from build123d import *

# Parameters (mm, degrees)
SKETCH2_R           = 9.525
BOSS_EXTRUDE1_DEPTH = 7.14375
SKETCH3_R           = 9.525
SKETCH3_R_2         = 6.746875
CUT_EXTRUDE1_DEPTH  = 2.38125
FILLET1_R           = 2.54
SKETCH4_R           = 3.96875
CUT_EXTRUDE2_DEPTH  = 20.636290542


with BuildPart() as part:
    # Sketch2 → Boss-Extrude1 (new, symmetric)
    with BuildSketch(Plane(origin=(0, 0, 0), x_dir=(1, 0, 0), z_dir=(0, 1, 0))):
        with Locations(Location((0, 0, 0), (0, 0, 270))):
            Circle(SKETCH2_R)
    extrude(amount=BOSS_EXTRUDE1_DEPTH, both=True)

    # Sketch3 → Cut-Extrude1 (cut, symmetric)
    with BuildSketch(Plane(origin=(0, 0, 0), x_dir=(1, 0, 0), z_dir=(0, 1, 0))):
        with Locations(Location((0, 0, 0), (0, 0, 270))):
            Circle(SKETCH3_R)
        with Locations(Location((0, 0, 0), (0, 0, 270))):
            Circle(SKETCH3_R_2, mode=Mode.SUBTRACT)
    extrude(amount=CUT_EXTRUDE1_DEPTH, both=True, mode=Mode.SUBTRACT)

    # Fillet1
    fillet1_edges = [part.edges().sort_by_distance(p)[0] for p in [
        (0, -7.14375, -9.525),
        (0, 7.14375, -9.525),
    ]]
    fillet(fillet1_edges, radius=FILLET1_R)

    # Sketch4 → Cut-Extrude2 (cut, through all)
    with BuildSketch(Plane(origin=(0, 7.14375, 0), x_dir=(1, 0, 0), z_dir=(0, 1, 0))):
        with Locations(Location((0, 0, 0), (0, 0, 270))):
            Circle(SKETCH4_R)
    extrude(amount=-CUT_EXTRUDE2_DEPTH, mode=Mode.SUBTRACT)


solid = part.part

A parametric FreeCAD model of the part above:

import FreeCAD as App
import Part
import Sketcher
Q = App.Units.Quantity


def edges_at(feature, points):
    """Names of the edges that pass closest to the given points."""
    edges = feature.Shape.Edges
    near = lambda p: min(range(len(edges)), key=lambda i: edges[i].distToShape(Part.Vertex(*p))[0])
    return sorted({f"Edge{near(p) + 1}" for p in points})

doc = App.newDocument("Part")
body = doc.addObject("PartDesign::Body", "Body")

# Sketch on XZ plane
sketch1 = body.newObject("Sketcher::SketchObject", "Sketch")
sketch1.AttachmentSupport = (doc.getObject("XZ_Plane"), [""])
sketch1.MapMode = "FlatFace"
sketch1.addGeometry(Part.Circle(App.Vector(0, 0, 0), App.Vector(0, 0, 1), 10), False)
sketch1.addConstraint(Sketcher.Constraint("Coincident", 0, 3, -1, 1))
sketch1.addConstraint(Sketcher.Constraint("Diameter", 0, Q("0.75 in")))
pad1 = body.newObject("PartDesign::Pad", "Pad")
pad1.Profile = sketch1
pad1.Length = Q("0.5625 in")
pad1.Midplane = True

# Sketch on XZ plane
sketch2 = body.newObject("Sketcher::SketchObject", "Sketch001")
sketch2.AttachmentSupport = (doc.getObject("XZ_Plane"), [""])
sketch2.MapMode = "FlatFace"
sketch2.addGeometry(Part.Circle(App.Vector(0, 0, 0), App.Vector(0, 0, 1), 10), False)
sketch2.addGeometry(Part.Circle(App.Vector(0, 0, 0), App.Vector(0, 0, 1), 7), False)
sketch2.addConstraint(Sketcher.Constraint("Coincident", 0, 3, -1, 1))
sketch2.addConstraint(Sketcher.Constraint("Coincident", 1, 3, -1, 1))
sketch2.addConstraint(Sketcher.Constraint("Diameter", 0, Q("0.75 in")))
sketch2.addConstraint(Sketcher.Constraint("Diameter", 1, Q("0.53125 in")))
pocket1 = body.newObject("PartDesign::Pocket", "Pocket")
pocket1.Profile = sketch2
pocket1.Length = Q("0.1875 in")
pocket1.Midplane = True
doc.recompute()

fillet = body.newObject("PartDesign::Fillet", "Fillet")
fillet.Base = (pocket1, edges_at(pocket1, [(0, -7.144, -9.525), (0, 7.144, -9.525)]))
fillet.Radius = Q("0.1 in")

# Sketch on XZ plane
sketch3 = body.newObject("Sketcher::SketchObject", "Sketch002")
sketch3.AttachmentSupport = (doc.getObject("XZ_Plane"), [""])
sketch3.MapMode = "FlatFace"
sketch3.AttachmentOffset = App.Placement(App.Vector(0, 0, -0.28125 * 25.4), App.Rotation())
sketch3.addGeometry(Part.Circle(App.Vector(0, 0, 0), App.Vector(0, 0, 1), 4), False)
sketch3.addConstraint(Sketcher.Constraint("Coincident", 0, 3, -1, 1))
sketch3.addConstraint(Sketcher.Constraint("Diameter", 0, Q("0.3125 in")))
pocket2 = body.newObject("PartDesign::Pocket", "Pocket001")
pocket2.Profile = sketch3
pocket2.Type = "ThroughAll"
pocket2.Reversed = True

doc.recompute()
